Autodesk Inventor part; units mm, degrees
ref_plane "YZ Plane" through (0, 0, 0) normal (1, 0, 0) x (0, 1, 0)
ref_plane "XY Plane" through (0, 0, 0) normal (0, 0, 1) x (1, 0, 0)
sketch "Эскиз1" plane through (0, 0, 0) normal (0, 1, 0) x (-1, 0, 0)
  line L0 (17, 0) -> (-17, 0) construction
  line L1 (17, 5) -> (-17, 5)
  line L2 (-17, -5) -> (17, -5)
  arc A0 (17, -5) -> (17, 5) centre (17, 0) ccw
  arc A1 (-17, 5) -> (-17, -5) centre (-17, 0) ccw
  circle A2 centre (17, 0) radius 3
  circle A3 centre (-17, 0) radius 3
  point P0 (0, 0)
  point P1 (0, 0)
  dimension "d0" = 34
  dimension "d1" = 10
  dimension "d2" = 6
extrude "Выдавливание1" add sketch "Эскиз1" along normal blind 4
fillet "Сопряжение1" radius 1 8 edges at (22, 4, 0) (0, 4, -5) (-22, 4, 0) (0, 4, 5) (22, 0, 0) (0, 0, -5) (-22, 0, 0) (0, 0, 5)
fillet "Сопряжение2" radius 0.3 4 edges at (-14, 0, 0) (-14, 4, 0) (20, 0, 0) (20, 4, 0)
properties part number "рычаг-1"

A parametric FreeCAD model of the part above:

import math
import FreeCAD as App
import Part
import Sketcher
from FreeCAD import Vector
Q = App.Units.Quantity


def edges_at(feature, points):
    """Names of the edges that pass closest to the given points."""
    edges = feature.Shape.Edges
    near = lambda p: min(range(len(edges)), key=lambda i: edges[i].distToShape(Part.Vertex(*p))[0])
    return sorted({f"Edge{near(p) + 1}" for p in points})

doc = App.newDocument("Part")
body = doc.addObject("PartDesign::Body", "Body")

# Sketch on XZ plane
sketch1 = doc.addObject("Sketcher::SketchObject", "Sketch")
body.addObject(sketch1)
sketch1.AttachmentSupport = (doc.XZ_Plane, [""])
sketch1.MapMode = "FlatFace"
sketch1.addGeometry([
    Part.ArcOfCircle(Part.Circle(Vector(-17, 0, 0), Vector(0, 0, 1), 5), math.radians(90), math.radians(270)),  # 0
    Part.LineSegment(Vector(-17, 5, 0), Vector(17, 5, 0)),  # 1
    Part.ArcOfCircle(Part.Circle(Vector(17, 0, 0), Vector(0, 0, 1), 5), math.radians(-90), math.radians(90)),  # 2
    Part.LineSegment(Vector(17, -5, 0), Vector(-17, -5, 0)),  # 3
    Part.Circle(Vector(17, 0, 0), Vector(0, 0, 1), 3),  # 4
    Part.Circle(Vector(-17, 0, 0), Vector(0, 0, 1), 3),  # 5
], False)
sketch1.addConstraint([
    Sketcher.Constraint("Tangent", 0, 1, 1, 1),
    Sketcher.Constraint("Tangent", 1, 2, 2, 2),
    Sketcher.Constraint("Tangent", 2, 1, 3, 1),
    Sketcher.Constraint("Tangent", 3, 2, 0, 2),
    Sketcher.Constraint("Horizontal", 1),
    Sketcher.Constraint("Horizontal", 3),
    Sketcher.Constraint("Coincident", 4, 3, 2, 3),
    Sketcher.Constraint("Coincident", 5, 3, 0, 3),
    Sketcher.Constraint("Equal", 4, 5),
    Sketcher.Constraint("Symmetric", 0, 3, 2, 3, -1, 1),
    Sketcher.Constraint("Diameter", 4, Q("6 mm")),
    Sketcher.Constraint("Radius", 0, Q("5 mm")),
    Sketcher.Constraint("DistanceX", 1, 1, 1, 2, Q("34 mm")),
])
pad1 = doc.addObject("PartDesign::Pad", "Pad")
body.addObject(pad1)
pad1.Profile = sketch1
pad1.Length = 4
pad1.Reversed = True
doc.recompute()

fillet = doc.addObject("PartDesign::Fillet", "Fillet")
body.addObject(fillet)
fillet.Base = (pad1, edges_at(pad1, [
    (22, 4, 0),
    (0, 4, -5),
    (-22, 4, 0),
    (0, 4, 5),
    (22, 0, 0),
    (0, 0, -5),
    (-22, 0, 0),
    (0, 0, 5),
]))
fillet.Radius = 1
doc.recompute()

fillet2 = doc.addObject("PartDesign::Fillet", "Fillet001")
body.addObject(fillet2)
fillet2.Base = (fillet, edges_at(fillet, [
    (-14, 0, 0),
    (-14, 4, 0),
    (20, 0, 0),
    (20, 4, 0),
]))
fillet2.Radius = 0.3

doc.recompute()
